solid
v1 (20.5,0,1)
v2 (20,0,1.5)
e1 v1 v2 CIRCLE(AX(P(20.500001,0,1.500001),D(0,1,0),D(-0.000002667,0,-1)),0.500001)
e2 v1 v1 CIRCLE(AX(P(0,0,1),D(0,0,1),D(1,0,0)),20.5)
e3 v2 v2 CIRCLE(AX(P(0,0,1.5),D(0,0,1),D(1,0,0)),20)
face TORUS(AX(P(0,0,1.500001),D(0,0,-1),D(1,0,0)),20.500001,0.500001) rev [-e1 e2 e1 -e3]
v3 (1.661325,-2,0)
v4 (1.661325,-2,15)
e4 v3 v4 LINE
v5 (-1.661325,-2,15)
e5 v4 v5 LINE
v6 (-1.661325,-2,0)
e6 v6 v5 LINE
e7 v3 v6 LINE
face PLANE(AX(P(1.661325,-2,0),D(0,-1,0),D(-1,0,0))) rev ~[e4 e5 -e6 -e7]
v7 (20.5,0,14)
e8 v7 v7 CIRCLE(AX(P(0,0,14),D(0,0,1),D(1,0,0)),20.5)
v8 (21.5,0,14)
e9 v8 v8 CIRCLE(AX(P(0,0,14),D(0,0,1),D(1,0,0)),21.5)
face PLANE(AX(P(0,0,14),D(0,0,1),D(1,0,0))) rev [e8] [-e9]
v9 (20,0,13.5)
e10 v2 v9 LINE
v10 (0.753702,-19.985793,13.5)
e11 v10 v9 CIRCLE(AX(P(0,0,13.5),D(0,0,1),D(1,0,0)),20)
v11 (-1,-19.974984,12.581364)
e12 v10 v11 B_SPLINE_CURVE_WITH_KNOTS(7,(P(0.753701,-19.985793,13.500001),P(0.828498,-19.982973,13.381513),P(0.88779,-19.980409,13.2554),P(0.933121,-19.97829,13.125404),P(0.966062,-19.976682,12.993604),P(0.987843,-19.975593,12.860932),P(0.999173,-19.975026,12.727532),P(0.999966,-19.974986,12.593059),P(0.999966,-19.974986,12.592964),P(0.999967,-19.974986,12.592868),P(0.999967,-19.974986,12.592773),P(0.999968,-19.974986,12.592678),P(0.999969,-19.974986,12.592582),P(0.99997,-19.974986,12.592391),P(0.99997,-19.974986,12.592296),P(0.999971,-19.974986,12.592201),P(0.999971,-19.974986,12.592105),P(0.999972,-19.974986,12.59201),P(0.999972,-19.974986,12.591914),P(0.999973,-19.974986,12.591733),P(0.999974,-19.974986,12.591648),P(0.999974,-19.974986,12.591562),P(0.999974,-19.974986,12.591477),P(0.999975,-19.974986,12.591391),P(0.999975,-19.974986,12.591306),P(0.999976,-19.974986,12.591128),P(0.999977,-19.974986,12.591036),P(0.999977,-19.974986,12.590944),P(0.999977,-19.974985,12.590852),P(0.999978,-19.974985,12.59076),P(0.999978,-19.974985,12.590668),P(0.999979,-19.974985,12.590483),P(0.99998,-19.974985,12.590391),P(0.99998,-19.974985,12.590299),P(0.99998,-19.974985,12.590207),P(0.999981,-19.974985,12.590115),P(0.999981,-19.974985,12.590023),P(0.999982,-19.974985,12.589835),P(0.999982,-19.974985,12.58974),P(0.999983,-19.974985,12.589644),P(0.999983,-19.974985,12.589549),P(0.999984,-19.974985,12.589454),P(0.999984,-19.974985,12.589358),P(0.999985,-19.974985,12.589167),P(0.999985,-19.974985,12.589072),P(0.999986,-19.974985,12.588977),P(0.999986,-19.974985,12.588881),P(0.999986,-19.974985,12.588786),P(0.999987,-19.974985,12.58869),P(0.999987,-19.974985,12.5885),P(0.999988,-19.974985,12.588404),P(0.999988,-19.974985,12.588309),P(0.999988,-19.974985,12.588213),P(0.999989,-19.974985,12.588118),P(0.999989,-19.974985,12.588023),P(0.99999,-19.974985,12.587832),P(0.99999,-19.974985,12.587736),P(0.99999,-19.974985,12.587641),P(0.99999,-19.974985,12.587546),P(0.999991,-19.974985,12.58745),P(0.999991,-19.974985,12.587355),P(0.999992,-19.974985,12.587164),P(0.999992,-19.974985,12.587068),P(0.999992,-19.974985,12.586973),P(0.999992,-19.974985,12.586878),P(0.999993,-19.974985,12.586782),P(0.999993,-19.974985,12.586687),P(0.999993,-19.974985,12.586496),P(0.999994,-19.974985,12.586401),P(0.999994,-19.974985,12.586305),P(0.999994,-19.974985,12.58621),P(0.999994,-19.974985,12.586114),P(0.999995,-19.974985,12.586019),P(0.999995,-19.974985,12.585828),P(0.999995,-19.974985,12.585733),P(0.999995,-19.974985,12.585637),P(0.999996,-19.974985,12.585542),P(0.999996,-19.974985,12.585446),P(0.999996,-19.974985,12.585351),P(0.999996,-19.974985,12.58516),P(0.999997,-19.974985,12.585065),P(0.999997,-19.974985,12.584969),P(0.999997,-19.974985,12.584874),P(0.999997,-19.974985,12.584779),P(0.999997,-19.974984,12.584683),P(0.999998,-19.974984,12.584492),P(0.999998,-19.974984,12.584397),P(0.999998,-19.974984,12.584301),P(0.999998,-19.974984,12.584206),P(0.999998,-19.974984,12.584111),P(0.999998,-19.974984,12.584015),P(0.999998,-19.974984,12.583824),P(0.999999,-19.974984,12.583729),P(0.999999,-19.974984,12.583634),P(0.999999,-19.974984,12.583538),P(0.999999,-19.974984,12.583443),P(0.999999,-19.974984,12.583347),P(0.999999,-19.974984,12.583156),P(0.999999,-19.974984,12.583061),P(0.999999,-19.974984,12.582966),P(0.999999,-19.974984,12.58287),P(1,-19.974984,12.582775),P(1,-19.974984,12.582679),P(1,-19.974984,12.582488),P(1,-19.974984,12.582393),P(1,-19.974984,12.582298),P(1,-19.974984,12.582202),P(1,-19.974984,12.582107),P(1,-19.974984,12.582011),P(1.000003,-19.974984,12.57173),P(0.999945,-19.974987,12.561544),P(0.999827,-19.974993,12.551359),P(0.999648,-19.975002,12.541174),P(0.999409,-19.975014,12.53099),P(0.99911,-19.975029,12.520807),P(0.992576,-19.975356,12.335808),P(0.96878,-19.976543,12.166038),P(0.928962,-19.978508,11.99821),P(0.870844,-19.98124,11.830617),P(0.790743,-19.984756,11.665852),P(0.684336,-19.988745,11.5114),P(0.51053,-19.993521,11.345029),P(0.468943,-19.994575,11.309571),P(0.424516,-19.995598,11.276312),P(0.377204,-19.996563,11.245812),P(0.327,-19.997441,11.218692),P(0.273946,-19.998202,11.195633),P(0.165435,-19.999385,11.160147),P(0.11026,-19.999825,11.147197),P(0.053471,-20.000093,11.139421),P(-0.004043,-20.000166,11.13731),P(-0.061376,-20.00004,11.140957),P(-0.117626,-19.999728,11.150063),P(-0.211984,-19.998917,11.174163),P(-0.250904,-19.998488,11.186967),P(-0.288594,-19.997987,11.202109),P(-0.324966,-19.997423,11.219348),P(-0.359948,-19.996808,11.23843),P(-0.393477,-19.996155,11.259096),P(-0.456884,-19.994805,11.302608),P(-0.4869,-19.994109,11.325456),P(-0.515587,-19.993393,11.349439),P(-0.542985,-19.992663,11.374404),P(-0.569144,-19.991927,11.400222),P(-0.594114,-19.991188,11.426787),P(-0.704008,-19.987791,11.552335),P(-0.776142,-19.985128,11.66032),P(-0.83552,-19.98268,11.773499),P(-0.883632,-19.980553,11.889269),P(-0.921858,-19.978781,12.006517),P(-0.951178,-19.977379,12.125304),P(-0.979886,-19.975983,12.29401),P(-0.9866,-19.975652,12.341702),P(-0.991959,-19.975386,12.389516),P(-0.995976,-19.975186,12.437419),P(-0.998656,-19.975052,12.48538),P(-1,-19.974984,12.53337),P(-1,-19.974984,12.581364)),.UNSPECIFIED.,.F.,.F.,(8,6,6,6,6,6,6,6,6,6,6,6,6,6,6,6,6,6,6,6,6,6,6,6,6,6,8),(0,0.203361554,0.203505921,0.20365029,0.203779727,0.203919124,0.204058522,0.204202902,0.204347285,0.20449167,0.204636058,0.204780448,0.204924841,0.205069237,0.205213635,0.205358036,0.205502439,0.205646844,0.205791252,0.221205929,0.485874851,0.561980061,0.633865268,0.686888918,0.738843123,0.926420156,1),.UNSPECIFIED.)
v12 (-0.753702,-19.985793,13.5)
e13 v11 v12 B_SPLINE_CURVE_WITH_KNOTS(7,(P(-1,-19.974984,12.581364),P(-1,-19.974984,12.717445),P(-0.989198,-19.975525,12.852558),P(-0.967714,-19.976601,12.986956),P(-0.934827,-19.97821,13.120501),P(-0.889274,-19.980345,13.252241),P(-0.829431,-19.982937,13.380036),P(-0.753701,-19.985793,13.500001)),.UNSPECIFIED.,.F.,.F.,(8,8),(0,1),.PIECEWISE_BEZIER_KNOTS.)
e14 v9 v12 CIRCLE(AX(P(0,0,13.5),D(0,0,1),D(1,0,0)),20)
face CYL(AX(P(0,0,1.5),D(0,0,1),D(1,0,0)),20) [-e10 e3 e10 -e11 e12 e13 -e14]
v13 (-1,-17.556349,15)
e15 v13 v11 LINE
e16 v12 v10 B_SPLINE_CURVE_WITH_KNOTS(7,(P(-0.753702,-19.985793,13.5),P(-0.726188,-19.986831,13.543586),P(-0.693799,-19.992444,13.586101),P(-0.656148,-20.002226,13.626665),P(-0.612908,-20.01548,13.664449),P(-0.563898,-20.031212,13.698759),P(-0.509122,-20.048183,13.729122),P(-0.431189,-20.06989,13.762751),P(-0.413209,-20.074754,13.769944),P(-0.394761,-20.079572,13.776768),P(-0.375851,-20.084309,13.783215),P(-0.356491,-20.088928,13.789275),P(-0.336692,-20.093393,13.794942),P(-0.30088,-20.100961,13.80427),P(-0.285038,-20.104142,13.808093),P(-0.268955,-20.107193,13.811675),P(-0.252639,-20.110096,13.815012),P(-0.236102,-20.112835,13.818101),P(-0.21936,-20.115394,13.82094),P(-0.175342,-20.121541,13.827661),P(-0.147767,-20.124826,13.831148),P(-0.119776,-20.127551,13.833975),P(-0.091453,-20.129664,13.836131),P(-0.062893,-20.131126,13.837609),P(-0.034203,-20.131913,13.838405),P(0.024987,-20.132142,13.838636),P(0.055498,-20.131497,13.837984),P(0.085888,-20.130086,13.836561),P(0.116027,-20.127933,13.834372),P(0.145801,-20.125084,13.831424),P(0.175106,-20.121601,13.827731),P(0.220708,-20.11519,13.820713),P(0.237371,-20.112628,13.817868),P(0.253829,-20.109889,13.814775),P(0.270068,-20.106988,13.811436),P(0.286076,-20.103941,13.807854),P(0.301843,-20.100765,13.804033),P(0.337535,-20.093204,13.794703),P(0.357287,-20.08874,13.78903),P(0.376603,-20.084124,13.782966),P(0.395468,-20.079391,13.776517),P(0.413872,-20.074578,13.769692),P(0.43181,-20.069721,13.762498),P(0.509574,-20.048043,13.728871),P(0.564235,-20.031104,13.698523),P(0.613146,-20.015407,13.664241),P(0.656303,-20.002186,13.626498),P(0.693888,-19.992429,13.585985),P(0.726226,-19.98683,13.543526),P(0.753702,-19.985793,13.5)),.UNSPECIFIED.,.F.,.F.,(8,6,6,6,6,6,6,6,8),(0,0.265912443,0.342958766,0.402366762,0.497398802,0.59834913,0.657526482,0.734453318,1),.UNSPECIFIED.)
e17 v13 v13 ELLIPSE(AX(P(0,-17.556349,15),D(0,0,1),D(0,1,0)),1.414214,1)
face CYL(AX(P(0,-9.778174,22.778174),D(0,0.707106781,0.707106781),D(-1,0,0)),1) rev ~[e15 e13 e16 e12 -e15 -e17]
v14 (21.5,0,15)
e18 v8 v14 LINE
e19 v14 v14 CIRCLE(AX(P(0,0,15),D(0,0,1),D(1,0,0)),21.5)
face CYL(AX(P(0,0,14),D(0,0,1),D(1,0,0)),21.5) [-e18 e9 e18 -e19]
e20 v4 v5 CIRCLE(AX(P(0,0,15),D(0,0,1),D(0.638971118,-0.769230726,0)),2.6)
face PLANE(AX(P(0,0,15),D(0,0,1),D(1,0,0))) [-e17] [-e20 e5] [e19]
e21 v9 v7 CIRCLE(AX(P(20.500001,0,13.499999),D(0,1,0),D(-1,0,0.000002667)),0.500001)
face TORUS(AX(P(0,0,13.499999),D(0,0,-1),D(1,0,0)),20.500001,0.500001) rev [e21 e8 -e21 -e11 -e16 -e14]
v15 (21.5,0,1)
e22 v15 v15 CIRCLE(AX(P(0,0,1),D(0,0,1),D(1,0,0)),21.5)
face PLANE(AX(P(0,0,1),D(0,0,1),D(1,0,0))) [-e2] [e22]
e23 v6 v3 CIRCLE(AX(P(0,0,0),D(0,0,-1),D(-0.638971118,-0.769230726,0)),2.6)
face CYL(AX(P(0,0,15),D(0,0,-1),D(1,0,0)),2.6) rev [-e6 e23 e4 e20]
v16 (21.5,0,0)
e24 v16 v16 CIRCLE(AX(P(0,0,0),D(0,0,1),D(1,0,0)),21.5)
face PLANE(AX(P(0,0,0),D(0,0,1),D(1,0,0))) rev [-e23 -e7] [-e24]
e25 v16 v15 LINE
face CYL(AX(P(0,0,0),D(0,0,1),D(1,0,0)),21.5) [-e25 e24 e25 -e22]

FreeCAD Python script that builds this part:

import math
import FreeCAD as App
import Part
import Sketcher

doc = App.newDocument("Part")
params = doc.addObject("Spreadsheet::Sheet", "Params")
for row, (alias, value) in enumerate([
    ("sketch1_radius", "0.500001 mm"),
    ("sketch1_width", "1 mm"),
    ("sketch1_height", "15 mm"),
    ("sketch1_height2", "12 mm"),
    ("sketch1_width2", "18.9 mm"),
    ("revolution_angle", "360 deg"),
    ("sketch2_radius", "2.600001 mm"),
    ("pad1_length", "15 mm"),
    ("sketch3_diameter", "2 mm"),
    ("pocket1_length", "25 mm"),
], start=1):
    params.set(f"A{row}", alias)
    params.set(f"B{row}", "=" + value)
    params.setAlias(f"B{row}", alias)

body = doc.addObject("PartDesign::Body", "Body")

sketch1 = body.newObject("Sketcher::SketchObject", "Sketch")
sketch1.AttachmentSupport = (doc.getObject("XZ_Plane"), [""])
sketch1.MapMode = "FlatFace"
sketch1.addGeometry(Part.LineSegment(App.Vector(2.6, 15, 0), App.Vector(2.6, 0, 0)), False)
sketch1.addGeometry(Part.LineSegment(App.Vector(2.6, 0, 0), App.Vector(21.5, 0, 0)), False)
sketch1.addGeometry(Part.LineSegment(App.Vector(21.5, 0, 0), App.Vector(21.5, 1, 0)), False)
sketch1.addGeometry(Part.LineSegment(App.Vector(21.5, 1, 0), App.Vector(20.5, 1, 0)), False)
sketch1.addGeometry(Part.ArcOfCircle(Part.Circle(App.Vector(20.5, 1.5, 0), App.Vector(0, 0, 1), 0.5), math.radians(-180), math.radians(-90)), False)
sketch1.addGeometry(Part.LineSegment(App.Vector(20, 1.5, 0), App.Vector(20, 13.5, 0)), False)
sketch1.addGeometry(Part.ArcOfCircle(Part.Circle(App.Vector(20.5, 13.5, 0), App.Vector(0, 0, 1), 0.5), math.radians(90), math.radians(180)), False)
sketch1.addGeometry(Part.LineSegment(App.Vector(20.5, 14, 0), App.Vector(21.5, 14, 0)), False)
sketch1.addGeometry(Part.LineSegment(App.Vector(21.5, 14, 0), App.Vector(21.5, 15, 0)), False)
sketch1.addGeometry(Part.LineSegment(App.Vector(21.5, 15, 0), App.Vector(2.6, 15, 0)), False)
sketch1.addConstraint(Sketcher.Constraint("Coincident", 0, 2, 1, 1))
sketch1.addConstraint(Sketcher.Constraint("Coincident", 1, 2, 2, 1))
sketch1.addConstraint(Sketcher.Constraint("Coincident", 2, 2, 3, 1))
sketch1.addConstraint(Sketcher.Constraint("Coincident", 3, 2, 4, 2))
sketch1.addConstraint(Sketcher.Constraint("Coincident", 4, 1, 5, 1))
sketch1.addConstraint(Sketcher.Constraint("Coincident", 5, 2, 6, 2))
sketch1.addConstraint(Sketcher.Constraint("Coincident", 6, 1, 7, 1))
sketch1.addConstraint(Sketcher.Constraint("Coincident", 7, 2, 8, 1))
sketch1.addConstraint(Sketcher.Constraint("Coincident", 8, 2, 9, 1))
sketch1.addConstraint(Sketcher.Constraint("Coincident", 9, 2, 0, 1))
sketch1.addConstraint(Sketcher.Constraint("Vertical", 0))
sketch1.addConstraint(Sketcher.Constraint("Horizontal", 1))
sketch1.addConstraint(Sketcher.Constraint("Vertical", 2))
sketch1.addConstraint(Sketcher.Constraint("Horizontal", 3))
sketch1.addConstraint(Sketcher.Constraint("Vertical", 5))
sketch1.addConstraint(Sketcher.Constraint("Horizontal", 7))
sketch1.addConstraint(Sketcher.Constraint("Vertical", 8))
sketch1.addConstraint(Sketcher.Constraint("Horizontal", 9))
sketch1.addConstraint(Sketcher.Constraint("Equal", 4, 6))
sketch1.addConstraint(Sketcher.Constraint("PointOnObject", 0, 2, -1))
sketch1.addConstraint(Sketcher.Constraint("Horizontal", 6, 3, 5, 2))
sketch1.addConstraint(Sketcher.Constraint("Vertical", 6, 3, 3, 2))
sketch1.addConstraint(Sketcher.Constraint("Vertical", 3, 2, 6, 1))
sketch1.addConstraint(Sketcher.Constraint("Vertical", 2, 2, 7, 2))
sketch1.addConstraint(Sketcher.Constraint("Equal", 7, 2))
sketch1.addConstraint(Sketcher.Constraint("Equal", 2, 8))
sketch1.addConstraint(Sketcher.Constraint("Radius", 4, 0.500001))
sketch1.addConstraint(Sketcher.Constraint("DistanceX", 3, 2, 3, 1, 1.0))
sketch1.addConstraint(Sketcher.Constraint("DistanceY", 0, 2, 0, 1, 15.0))
sketch1.addConstraint(Sketcher.Constraint("DistanceY", 5, 1, 5, 2, 12.0))
sketch1.addConstraint(Sketcher.Constraint("DistanceX", 1, 1, 1, 2, 18.9))
sketch1.addConstraint(Sketcher.Constraint("DistanceX", -1, 1, 4, 1, 20.0))
sketch1.setExpression("Constraints[26]", "Params.sketch1_radius")
sketch1.setExpression("Constraints[27]", "Params.sketch1_width")
sketch1.setExpression("Constraints[28]", "Params.sketch1_height")
sketch1.setExpression("Constraints[29]", "Params.sketch1_height2")
sketch1.setExpression("Constraints[30]", "Params.sketch1_width2")
revolution = body.newObject("PartDesign::Revolution", "Revolution")
revolution.Profile = sketch1
revolution.ReferenceAxis = (sketch1, ["V_Axis"])
revolution.setExpression("Angle", "Params.revolution_angle")

sketch2 = body.newObject("Sketcher::SketchObject", "Sketch001")
sketch2.AttachmentSupport = (doc.getObject("XY_Plane"), [""])
sketch2.MapMode = "FlatFace"
sketch2.addGeometry(Part.LineSegment(App.Vector(1.7, -2, 0), App.Vector(-1.7, -2, 0)), False)
sketch2.addGeometry(Part.ArcOfCircle(Part.Circle(App.Vector(0, 0, 0), App.Vector(0, 0, 1), 2.6), math.radians(-130), math.radians(-50)), False)
sketch2.addConstraint(Sketcher.Constraint("Coincident", 0, 1, 1, 2))
sketch2.addConstraint(Sketcher.Constraint("Coincident", 1, 1, 0, 2))
sketch2.addConstraint(Sketcher.Constraint("Horizontal", 0))
sketch2.addConstraint(Sketcher.Constraint("Coincident", 1, 3, -1, 1))
sketch2.addConstraint(Sketcher.Constraint("Radius", 1, 2.600001))
sketch2.addConstraint(Sketcher.Constraint("DistanceY", 0, 1, -1, 1, 2.0))
sketch2.setExpression("Constraints[4]", "Params.sketch2_radius")
pad1 = body.newObject("PartDesign::Pad", "Pad")
pad1.Profile = sketch2
pad1.setExpression("Length", "Params.pad1_length")

sketch3 = body.newObject("Sketcher::SketchObject", "Sketch002")
sketch3.Placement = App.Placement(App.Vector(0, 6.5, 6.5), App.Rotation(App.Vector(-1, 0, 0), App.Vector(0, -0.707106781, 0.707106781), App.Vector(0, 0.707106781, 0.707106781), "ZXY"))
sketch3.addGeometry(Part.Circle(App.Vector(0, 23, 0), App.Vector(0, 0, 1), 1), False)
sketch3.addConstraint(Sketcher.Constraint("PointOnObject", 0, 3, -2))
sketch3.addConstraint(Sketcher.Constraint("Diameter", 0, 2.0))
sketch3.addConstraint(Sketcher.Constraint("DistanceY", -1, 1, 0, 3, 23.020815))
sketch3.setExpression("Constraints[1]", "Params.sketch3_diameter")
pocket1 = body.newObject("PartDesign::Pocket", "Pocket")
pocket1.Profile = sketch3
pocket1.setExpression("Length", "Params.pocket1_length")

doc.recompute()
